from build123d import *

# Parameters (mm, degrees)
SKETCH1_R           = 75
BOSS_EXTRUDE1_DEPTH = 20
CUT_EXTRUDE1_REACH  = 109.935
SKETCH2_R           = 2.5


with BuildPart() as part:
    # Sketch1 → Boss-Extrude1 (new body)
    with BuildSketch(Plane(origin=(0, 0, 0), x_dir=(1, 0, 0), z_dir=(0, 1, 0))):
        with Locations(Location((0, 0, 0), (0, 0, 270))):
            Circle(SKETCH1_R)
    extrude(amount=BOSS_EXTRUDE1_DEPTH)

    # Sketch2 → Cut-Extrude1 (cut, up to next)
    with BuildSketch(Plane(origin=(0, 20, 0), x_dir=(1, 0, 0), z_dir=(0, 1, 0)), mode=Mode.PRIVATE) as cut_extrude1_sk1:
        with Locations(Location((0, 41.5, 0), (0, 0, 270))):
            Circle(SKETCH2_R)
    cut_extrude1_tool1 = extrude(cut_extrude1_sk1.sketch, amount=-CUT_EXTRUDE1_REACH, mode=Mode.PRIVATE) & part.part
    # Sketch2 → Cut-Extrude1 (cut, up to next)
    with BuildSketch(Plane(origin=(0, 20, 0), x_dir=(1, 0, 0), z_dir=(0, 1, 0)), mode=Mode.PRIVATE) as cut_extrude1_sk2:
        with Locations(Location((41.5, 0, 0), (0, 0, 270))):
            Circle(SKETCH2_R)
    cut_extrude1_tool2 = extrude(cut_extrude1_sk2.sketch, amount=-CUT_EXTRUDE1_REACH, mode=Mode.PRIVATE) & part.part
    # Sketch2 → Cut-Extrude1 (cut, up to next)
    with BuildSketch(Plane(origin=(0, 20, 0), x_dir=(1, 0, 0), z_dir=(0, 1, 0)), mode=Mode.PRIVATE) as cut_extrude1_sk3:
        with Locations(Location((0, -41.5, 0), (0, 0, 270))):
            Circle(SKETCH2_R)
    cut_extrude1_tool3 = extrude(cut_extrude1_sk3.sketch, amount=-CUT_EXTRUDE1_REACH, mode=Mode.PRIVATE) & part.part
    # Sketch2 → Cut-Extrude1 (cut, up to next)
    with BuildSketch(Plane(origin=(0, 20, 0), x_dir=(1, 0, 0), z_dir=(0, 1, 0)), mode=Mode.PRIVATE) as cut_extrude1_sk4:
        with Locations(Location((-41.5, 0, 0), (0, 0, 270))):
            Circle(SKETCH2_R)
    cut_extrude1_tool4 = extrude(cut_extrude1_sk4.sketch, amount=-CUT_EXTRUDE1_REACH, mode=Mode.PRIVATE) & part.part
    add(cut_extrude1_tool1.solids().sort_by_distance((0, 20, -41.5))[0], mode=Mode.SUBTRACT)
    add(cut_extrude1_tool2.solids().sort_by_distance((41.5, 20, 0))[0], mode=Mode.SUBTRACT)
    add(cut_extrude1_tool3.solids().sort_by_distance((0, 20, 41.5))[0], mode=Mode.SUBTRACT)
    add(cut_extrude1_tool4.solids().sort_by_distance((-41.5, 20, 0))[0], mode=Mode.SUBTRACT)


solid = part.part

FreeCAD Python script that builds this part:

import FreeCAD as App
import Part
import Sketcher

V = App.Vector

doc = App.newDocument("Part")
body = doc.addObject("PartDesign::Body", "Body")

sketch1 = body.newObject("Sketcher::SketchObject", "Sketch")
sketch1.AttachmentSupport = (doc.getObject("XZ_Plane"), [""])
sketch1.MapMode = "FlatFace"
sketch1.addGeometry(Part.Circle(V(0, 0, 0), V(0, 0, 1), 75), False)
sketch1.addConstraint([
    Sketcher.Constraint("Coincident", 0, 3, -1, 1),
    Sketcher.Constraint("Diameter", 0, 150.0),
])
pad1 = body.newObject("PartDesign::Pad", "Pad")
pad1.Profile = sketch1
pad1.Length = 20
pad1.Reversed = True

sketch2 = body.newObject("Sketcher::SketchObject", "Sketch001")
sketch2.AttachmentSupport = (doc.getObject("XZ_Plane"), [""])
sketch2.MapMode = "FlatFace"
sketch2.AttachmentOffset = App.Placement(V(0, 0, -20), App.Rotation())
sketch2.addGeometry(Part.Circle(V(0, -41.5, 0), V(0, 0, 1), 2.5), False)
sketch2.addConstraint([
    Sketcher.Constraint("PointOnObject", 0, 3, -2),
    Sketcher.Constraint("Diameter", 0, 5.0),
    Sketcher.Constraint("DistanceY", 0, 3, -1, 1, 41.5),
])
pocket1 = body.newObject("PartDesign::Pocket", "Pocket")
pocket1.Profile = sketch2
pocket1.Type = "UpToFirst"
pocket1.Reversed = True

sketch3 = body.newObject("Sketcher::SketchObject", "Sketch002")
sketch3.AttachmentSupport = (doc.getObject("XZ_Plane"), [""])
sketch3.MapMode = "FlatFace"
sketch3.AttachmentOffset = App.Placement(V(0, 0, -20), App.Rotation())
sketch3.addGeometry(Part.Circle(V(41.5, 0, 0), V(0, 0, 1), 2.5), False)
sketch3.addConstraint([
    Sketcher.Constraint("PointOnObject", 0, 3, -1),
    Sketcher.Constraint("Diameter", 0, 5.0),
    Sketcher.Constraint("DistanceX", -1, 1, 0, 3, 41.5),
])
pocket2 = body.newObject("PartDesign::Pocket", "Pocket001")
pocket2.Profile = sketch3
pocket2.Type = "UpToFirst"
pocket2.Reversed = True

sketch4 = body.newObject("Sketcher::SketchObject", "Sketch003")
sketch4.AttachmentSupport = (doc.getObject("XZ_Plane"), [""])
sketch4.MapMode = "FlatFace"
sketch4.AttachmentOffset = App.Placement(V(0, 0, -20), App.Rotation())
sketch4.addGeometry(Part.Circle(V(0, 41.5, 0), V(0, 0, 1), 2.5), False)
sketch4.addConstraint([
    Sketcher.Constraint("PointOnObject", 0, 3, -2),
    Sketcher.Constraint("Diameter", 0, 5.0),
    Sketcher.Constraint("DistanceY", -1, 1, 0, 3, 41.5),
])
pocket3 = body.newObject("PartDesign::Pocket", "Pocket002")
pocket3.Profile = sketch4
pocket3.Type = "UpToFirst"
pocket3.Reversed = True

sketch5 = body.newObject("Sketcher::SketchObject", "Sketch004")
sketch5.AttachmentSupport = (doc.getObject("XZ_Plane"), [""])
sketch5.MapMode = "FlatFace"
sketch5.AttachmentOffset = App.Placement(V(0, 0, -20), App.Rotation())
sketch5.addGeometry(Part.Circle(V(-41.5, 0, 0), V(0, 0, 1), 2.5), False)
sketch5.addConstraint([
    Sketcher.Constraint("PointOnObject", 0, 3, -1),
    Sketcher.Constraint("Diameter", 0, 5.0),
    Sketcher.Constraint("DistanceX", 0, 3, -1, 1, 41.5),
])
pocket4 = body.newObject("PartDesign::Pocket", "Pocket003")
pocket4.Profile = sketch5
pocket4.Type = "UpToFirst"
pocket4.Reversed = True

doc.recompute()
